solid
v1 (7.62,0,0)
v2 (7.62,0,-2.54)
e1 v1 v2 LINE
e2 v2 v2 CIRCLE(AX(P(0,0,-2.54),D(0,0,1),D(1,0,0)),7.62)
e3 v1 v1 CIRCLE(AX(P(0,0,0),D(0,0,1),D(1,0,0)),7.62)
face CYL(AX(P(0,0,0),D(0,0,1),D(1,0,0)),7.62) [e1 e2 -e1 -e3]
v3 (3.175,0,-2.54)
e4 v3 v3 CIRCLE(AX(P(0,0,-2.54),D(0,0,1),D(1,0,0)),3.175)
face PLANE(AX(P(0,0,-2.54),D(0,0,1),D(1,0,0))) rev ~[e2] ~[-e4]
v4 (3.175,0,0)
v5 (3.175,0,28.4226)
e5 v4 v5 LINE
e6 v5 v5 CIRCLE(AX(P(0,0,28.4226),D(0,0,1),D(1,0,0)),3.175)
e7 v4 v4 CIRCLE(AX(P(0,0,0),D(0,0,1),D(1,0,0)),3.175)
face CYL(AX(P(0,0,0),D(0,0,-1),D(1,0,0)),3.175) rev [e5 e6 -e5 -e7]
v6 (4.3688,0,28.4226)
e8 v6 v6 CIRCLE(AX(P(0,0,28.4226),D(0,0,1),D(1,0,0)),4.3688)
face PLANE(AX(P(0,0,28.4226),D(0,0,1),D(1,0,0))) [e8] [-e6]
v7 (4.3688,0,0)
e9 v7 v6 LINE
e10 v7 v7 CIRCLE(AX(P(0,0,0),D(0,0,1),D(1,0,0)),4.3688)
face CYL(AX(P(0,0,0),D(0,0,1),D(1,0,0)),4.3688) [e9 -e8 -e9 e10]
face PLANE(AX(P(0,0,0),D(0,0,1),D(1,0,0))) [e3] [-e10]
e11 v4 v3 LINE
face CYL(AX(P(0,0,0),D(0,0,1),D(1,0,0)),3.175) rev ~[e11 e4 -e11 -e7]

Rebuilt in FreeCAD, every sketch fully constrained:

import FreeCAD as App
import Part
import Sketcher
Q = App.Units.Quantity

doc = App.newDocument("Part")
body = doc.addObject("PartDesign::Body", "Body")

# Sketch on XY plane
sketch1 = doc.addObject("Sketcher::SketchObject", "Sketch")
body.addObject(sketch1)
sketch1.AttachmentSupport = (doc.XY_Plane, [""])
sketch1.MapMode = "FlatFace"
sketch1.addGeometry(Part.Circle(App.Vector(0, 0, 0), App.Vector(0, 0, 1), 4.4), False)
sketch1.addGeometry(Part.Circle(App.Vector(0, 0, 0), App.Vector(0, 0, 1), 3.2), False)
sketch1.addConstraint(Sketcher.Constraint("Coincident", 0, 3, -1, 1))
sketch1.addConstraint(Sketcher.Constraint("Coincident", 1, 3, -1, 1))
sketch1.addConstraint(Sketcher.Constraint("Diameter", 1, Q("0.25 in")))
sketch1.addConstraint(Sketcher.Constraint("Diameter", 0, Q("0.344 in")))
pad1 = doc.addObject("PartDesign::Pad", "Pad")
body.addObject(pad1)
pad1.Profile = sketch1
pad1.Type = "TwoLengths"
pad1.Length = Q("1.119 in")
pad1.Length2 = Q("0.1 in")

# Sketch on XY plane
sketch2 = doc.addObject("Sketcher::SketchObject", "Sketch001")
body.addObject(sketch2)
sketch2.AttachmentSupport = (doc.XY_Plane, [""])
sketch2.MapMode = "FlatFace"
sketch2.addGeometry(Part.Circle(App.Vector(0, 0, 0), App.Vector(0, 0, 1), 7.6), False)
sketch2.addGeometry(Part.Circle(App.Vector(0, 0, 0), App.Vector(0, 0, 1), 4.4), False)
sketch2.addConstraint(Sketcher.Constraint("Coincident", 0, 3, -1, 1))
sketch2.addConstraint(Sketcher.Constraint("Coincident", 1, 3, -1, 1))
sketch2.addConstraint(Sketcher.Constraint("Diameter", 0, Q("0.6 in")))
sketch2.addConstraint(Sketcher.Constraint("Diameter", 1, Q("0.344 in")))
pad2 = doc.addObject("PartDesign::Pad", "Pad001")
body.addObject(pad2)
pad2.Profile = sketch2
pad2.Length = Q("0.1 in")
pad2.Reversed = True

doc.recompute()
